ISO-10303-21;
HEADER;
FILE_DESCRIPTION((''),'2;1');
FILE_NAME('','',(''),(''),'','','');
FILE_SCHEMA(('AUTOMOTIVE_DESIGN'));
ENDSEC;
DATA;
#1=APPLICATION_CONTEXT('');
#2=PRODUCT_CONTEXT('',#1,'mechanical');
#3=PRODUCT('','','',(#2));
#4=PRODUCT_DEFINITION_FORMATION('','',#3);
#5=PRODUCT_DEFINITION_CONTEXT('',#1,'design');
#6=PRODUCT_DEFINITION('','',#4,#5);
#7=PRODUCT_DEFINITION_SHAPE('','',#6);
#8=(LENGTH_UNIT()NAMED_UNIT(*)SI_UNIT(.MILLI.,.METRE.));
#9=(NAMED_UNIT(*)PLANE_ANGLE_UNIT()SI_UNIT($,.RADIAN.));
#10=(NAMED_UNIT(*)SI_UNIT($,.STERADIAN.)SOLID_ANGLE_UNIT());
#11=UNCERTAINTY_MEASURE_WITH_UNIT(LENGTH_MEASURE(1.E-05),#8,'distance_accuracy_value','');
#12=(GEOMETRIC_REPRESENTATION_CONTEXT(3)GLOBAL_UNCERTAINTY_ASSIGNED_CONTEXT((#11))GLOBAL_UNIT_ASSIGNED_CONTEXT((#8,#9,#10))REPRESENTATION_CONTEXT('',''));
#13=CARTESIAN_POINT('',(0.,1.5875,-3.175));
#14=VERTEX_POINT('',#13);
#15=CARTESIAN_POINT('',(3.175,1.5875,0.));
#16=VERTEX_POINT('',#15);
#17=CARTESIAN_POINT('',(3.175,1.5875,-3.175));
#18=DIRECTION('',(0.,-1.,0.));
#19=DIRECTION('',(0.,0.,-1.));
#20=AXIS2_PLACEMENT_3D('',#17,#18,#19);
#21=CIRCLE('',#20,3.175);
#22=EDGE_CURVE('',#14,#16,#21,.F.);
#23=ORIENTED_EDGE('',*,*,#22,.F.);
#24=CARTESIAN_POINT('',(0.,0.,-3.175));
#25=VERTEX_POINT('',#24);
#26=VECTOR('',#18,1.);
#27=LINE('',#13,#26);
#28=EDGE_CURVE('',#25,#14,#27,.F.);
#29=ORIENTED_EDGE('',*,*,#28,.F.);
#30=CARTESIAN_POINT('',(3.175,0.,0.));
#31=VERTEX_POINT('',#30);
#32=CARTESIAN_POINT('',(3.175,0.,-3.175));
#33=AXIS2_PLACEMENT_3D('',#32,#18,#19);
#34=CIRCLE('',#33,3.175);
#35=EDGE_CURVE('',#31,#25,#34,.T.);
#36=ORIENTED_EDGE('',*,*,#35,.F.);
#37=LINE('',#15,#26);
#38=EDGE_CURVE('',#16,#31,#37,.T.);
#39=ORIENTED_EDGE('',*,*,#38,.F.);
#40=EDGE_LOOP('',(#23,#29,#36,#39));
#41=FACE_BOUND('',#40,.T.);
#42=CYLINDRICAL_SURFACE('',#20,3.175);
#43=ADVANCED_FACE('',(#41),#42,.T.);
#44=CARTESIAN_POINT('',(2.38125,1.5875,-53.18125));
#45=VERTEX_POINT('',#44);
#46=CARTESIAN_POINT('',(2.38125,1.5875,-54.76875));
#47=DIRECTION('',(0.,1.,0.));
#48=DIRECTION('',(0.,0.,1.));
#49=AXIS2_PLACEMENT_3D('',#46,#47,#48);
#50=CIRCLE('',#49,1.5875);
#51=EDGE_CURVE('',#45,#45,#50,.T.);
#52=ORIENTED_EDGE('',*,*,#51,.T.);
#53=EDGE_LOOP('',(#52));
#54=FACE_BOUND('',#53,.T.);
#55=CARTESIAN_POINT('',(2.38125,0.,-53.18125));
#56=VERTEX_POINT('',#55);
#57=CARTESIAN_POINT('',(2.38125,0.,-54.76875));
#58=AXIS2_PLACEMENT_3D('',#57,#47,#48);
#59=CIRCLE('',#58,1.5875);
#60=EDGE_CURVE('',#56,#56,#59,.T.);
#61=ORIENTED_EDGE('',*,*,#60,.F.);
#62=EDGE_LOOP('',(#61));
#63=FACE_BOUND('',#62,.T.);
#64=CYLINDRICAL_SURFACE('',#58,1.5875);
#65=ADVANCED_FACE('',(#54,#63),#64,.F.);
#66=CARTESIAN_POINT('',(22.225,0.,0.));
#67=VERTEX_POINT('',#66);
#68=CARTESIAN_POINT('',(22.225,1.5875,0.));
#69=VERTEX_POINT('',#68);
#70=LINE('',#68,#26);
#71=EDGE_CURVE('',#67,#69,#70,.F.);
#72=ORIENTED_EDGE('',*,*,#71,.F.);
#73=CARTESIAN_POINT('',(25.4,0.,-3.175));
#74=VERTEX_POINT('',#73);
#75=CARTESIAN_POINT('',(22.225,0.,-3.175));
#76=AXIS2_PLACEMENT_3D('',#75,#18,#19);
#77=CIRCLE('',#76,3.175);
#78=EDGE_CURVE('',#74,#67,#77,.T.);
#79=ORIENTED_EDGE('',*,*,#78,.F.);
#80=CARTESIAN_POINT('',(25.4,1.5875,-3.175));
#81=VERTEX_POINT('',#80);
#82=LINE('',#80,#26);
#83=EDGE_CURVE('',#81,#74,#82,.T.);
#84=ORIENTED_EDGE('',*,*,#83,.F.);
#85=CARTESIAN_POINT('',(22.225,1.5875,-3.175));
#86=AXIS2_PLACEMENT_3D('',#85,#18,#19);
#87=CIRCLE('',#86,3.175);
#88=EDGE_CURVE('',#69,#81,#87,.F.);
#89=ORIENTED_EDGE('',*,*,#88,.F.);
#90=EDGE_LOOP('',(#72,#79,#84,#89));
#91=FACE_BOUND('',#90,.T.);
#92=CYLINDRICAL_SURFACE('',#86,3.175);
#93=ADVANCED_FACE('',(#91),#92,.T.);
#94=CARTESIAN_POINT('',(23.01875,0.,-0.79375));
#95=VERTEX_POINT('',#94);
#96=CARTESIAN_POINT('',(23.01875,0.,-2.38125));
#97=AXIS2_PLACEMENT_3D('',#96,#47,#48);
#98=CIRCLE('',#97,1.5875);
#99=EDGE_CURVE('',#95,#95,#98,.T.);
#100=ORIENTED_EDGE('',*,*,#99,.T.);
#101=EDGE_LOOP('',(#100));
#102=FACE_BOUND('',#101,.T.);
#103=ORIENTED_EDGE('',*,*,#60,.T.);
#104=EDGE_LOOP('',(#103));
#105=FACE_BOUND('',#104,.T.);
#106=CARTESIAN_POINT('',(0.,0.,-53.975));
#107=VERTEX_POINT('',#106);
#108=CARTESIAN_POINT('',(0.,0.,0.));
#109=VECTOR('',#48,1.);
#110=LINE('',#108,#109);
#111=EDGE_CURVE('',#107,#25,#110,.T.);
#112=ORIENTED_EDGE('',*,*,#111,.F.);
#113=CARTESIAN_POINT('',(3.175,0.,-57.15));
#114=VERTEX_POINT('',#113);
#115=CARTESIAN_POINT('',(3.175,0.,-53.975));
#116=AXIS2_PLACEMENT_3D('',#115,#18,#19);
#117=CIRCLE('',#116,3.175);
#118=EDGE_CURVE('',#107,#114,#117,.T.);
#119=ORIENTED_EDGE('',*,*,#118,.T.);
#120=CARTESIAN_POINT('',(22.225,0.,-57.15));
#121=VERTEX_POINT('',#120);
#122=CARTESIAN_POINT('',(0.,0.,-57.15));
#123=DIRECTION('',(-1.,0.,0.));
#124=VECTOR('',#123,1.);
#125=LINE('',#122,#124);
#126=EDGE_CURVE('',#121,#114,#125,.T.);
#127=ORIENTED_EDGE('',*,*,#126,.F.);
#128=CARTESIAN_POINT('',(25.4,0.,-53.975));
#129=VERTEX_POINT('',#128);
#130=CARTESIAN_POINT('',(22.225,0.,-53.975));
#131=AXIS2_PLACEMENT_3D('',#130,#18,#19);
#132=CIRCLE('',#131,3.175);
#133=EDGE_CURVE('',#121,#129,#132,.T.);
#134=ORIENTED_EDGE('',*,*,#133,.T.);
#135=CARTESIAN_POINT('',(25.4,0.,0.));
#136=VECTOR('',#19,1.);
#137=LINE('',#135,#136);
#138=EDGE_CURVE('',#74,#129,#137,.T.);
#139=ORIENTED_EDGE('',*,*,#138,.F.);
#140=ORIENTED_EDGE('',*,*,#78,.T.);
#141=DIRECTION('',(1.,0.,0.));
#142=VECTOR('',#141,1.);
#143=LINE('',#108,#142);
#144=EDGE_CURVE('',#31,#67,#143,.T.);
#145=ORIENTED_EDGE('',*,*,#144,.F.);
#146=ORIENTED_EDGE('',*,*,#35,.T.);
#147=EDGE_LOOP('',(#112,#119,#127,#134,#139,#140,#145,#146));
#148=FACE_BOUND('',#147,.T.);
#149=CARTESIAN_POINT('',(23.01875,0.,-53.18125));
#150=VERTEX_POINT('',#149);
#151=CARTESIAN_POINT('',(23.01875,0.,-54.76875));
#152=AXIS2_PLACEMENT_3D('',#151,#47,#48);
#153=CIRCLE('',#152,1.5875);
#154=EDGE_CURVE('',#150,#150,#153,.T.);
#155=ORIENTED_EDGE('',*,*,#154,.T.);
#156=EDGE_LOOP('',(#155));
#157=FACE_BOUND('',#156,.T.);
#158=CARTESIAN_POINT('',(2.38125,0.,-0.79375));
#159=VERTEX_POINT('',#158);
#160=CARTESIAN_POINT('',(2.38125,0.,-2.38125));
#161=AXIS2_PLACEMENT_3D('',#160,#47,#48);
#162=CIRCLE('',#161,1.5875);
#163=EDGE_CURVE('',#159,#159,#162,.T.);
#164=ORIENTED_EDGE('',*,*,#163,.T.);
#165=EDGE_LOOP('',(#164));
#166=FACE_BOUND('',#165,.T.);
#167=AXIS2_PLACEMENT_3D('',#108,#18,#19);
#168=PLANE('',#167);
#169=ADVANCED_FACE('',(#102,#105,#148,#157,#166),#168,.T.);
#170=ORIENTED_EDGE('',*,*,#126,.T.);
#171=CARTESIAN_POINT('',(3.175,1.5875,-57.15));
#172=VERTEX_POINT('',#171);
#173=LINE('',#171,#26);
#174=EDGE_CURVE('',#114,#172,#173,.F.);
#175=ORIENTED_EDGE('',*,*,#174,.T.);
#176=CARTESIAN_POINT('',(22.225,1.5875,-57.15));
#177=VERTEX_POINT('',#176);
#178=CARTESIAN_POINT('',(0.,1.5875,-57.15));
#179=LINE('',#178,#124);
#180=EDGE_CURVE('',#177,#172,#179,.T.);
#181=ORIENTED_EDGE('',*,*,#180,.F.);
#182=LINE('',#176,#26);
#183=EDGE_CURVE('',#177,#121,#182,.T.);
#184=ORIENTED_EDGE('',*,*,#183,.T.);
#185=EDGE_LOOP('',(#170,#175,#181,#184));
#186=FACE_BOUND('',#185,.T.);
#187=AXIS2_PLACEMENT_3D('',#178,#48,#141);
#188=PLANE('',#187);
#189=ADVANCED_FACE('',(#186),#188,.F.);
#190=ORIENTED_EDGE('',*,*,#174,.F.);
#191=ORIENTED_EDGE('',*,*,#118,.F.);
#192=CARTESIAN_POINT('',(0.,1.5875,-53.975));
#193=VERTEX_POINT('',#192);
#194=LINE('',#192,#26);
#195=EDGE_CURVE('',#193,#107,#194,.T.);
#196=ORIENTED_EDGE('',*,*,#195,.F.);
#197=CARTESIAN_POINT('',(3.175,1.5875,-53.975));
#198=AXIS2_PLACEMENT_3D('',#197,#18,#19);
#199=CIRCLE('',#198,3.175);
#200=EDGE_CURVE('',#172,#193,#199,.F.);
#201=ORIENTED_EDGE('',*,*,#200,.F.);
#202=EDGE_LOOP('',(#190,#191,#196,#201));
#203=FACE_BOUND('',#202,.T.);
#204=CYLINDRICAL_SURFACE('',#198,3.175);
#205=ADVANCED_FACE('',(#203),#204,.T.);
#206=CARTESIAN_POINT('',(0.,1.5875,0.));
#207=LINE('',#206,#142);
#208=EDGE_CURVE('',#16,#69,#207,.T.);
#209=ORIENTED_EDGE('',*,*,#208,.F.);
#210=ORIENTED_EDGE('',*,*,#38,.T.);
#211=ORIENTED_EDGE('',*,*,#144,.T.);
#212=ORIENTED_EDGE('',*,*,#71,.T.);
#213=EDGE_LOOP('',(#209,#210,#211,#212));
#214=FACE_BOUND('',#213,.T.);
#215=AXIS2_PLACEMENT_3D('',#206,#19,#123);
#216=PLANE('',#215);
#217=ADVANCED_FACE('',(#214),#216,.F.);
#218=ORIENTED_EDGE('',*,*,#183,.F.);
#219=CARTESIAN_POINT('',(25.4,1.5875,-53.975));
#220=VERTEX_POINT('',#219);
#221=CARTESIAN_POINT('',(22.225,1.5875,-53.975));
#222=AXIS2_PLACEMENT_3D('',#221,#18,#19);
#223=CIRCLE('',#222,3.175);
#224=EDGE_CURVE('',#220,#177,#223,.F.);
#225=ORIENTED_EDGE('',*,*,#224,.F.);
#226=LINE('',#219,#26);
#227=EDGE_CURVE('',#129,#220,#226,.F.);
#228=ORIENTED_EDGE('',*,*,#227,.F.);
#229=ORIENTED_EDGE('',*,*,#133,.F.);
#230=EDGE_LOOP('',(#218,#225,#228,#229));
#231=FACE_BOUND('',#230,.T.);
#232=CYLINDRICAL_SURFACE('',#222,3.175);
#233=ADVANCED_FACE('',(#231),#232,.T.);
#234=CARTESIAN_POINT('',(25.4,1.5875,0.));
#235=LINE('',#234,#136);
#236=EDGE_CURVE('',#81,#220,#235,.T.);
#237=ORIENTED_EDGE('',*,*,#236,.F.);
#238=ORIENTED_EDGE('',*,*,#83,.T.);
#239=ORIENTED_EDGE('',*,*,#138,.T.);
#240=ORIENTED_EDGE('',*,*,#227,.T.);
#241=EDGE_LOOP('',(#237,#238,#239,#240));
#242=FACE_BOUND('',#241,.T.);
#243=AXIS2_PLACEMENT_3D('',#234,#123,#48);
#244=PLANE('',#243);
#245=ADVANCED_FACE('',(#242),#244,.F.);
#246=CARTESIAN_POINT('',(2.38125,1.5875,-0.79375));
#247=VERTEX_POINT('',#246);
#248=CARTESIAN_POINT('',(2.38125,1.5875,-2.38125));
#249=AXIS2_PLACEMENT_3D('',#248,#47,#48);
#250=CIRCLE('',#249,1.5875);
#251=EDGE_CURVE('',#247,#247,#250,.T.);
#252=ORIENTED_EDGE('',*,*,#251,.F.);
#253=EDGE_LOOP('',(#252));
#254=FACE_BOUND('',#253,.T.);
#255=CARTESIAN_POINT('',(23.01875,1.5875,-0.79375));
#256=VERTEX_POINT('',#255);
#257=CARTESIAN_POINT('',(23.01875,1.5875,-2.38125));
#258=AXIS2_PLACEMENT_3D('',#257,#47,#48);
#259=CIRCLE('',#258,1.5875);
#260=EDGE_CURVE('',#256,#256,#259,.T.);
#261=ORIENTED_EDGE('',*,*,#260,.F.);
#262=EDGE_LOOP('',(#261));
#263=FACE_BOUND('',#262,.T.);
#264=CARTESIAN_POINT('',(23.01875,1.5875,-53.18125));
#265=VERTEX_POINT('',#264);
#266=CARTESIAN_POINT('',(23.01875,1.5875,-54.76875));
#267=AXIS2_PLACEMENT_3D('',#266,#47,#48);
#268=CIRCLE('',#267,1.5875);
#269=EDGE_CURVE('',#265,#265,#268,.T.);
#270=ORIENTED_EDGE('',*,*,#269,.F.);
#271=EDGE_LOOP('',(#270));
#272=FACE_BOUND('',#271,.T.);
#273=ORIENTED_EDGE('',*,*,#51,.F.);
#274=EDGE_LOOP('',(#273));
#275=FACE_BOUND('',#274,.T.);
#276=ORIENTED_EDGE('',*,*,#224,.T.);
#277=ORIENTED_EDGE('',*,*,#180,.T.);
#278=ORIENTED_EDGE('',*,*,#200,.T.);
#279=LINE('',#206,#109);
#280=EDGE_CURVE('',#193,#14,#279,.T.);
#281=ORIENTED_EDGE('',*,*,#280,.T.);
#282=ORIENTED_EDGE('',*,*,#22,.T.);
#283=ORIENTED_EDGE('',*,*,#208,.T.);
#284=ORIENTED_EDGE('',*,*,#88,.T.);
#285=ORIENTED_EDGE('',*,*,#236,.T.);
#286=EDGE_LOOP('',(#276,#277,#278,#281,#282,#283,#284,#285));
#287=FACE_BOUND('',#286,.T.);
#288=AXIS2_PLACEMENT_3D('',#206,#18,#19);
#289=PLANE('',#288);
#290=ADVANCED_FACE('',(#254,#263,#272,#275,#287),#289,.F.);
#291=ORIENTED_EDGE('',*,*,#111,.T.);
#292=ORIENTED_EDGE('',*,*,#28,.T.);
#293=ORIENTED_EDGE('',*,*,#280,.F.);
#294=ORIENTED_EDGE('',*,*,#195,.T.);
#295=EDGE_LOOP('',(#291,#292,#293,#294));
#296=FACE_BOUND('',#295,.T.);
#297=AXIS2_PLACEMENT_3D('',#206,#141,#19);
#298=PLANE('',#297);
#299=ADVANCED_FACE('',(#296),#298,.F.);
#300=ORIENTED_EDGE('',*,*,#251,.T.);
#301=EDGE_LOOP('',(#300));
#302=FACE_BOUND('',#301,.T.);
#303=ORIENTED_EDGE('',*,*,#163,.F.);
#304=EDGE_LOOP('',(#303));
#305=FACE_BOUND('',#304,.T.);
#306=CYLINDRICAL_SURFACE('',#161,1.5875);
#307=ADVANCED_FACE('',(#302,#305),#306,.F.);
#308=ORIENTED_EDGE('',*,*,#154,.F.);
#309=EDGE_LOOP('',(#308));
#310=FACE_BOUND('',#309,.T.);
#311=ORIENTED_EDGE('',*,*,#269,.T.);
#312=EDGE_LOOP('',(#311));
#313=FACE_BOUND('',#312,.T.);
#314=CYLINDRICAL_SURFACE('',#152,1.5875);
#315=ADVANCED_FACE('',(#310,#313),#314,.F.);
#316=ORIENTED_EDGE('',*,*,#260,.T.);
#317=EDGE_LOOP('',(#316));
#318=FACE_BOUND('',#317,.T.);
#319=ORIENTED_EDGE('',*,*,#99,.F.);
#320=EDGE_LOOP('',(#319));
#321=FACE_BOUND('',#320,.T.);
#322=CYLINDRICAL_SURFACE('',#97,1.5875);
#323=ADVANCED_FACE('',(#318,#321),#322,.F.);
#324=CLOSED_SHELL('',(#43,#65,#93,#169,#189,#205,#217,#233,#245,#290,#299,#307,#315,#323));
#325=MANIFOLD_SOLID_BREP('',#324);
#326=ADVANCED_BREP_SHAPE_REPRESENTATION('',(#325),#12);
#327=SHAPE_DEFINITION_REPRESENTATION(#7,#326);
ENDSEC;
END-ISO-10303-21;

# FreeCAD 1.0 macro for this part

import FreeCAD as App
import Part
import Sketcher
Q = App.Units.Quantity


def edges_at(feature, points):
    """Names of the edges that pass closest to the given points."""
    edges = feature.Shape.Edges
    near = lambda p: min(range(len(edges)), key=lambda i: edges[i].distToShape(Part.Vertex(*p))[0])
    return sorted({f"Edge{near(p) + 1}" for p in points})


def add_polygon(sketch, points):
    """Adds a closed chain of lines whose ends are joined by coincident constraints."""
    first, n = sketch.GeometryCount, len(points)
    for a, b in zip(points, points[1:] + points[:1]):
        sketch.addGeometry(Part.LineSegment(App.Vector(*a, 0), App.Vector(*b, 0)), False)
    for i in range(n):
        sketch.addConstraint(Sketcher.Constraint("Coincident", first + i, 2, first + (i + 1) % n, 1))

doc = App.newDocument("Part")
body = doc.addObject("PartDesign::Body", "Body")

sketch1 = body.newObject("Sketcher::SketchObject", "Sketch")
sketch1.AttachmentSupport = (doc.getObject("XZ_Plane"), [""])
sketch1.MapMode = "FlatFace"
add_polygon(sketch1, [(0, -57), (0, 0), (25, 0), (25, -57)])
sketch1.addConstraint(Sketcher.Constraint("Vertical", 0))
sketch1.addConstraint(Sketcher.Constraint("Horizontal", 1))
sketch1.addConstraint(Sketcher.Constraint("Vertical", 2))
sketch1.addConstraint(Sketcher.Constraint("Horizontal", 3))
sketch1.addConstraint(Sketcher.Constraint("Coincident", 0, 2, -1, 1))
sketch1.addConstraint(Sketcher.Constraint("DistanceX", 1, 1, 1, 2, Q("1 in")))
sketch1.addConstraint(Sketcher.Constraint("DistanceY", 0, 1, 0, 2, Q("2.25 in")))
pad1 = body.newObject("PartDesign::Pad", "Pad")
pad1.Profile = sketch1
pad1.Length = Q("0.0625 in")
pad1.Reversed = True

sketch2 = body.newObject("Sketcher::SketchObject", "Sketch001")
sketch2.AttachmentSupport = (doc.getObject("XZ_Plane"), [""])
sketch2.MapMode = "FlatFace"
sketch2.AttachmentOffset = App.Placement(App.Vector(0, 0, -0.0625 * 25.4), App.Rotation())
sketch2.addGeometry(Part.Circle(App.Vector(2.4, -54.8, 0), App.Vector(0, 0, 1), 1.6), False)
sketch2.addGeometry(Part.Circle(App.Vector(23, -54.8, 0), App.Vector(0, 0, 1), 1.6), False)
sketch2.addGeometry(Part.Circle(App.Vector(23, -2.4, 0), App.Vector(0, 0, 1), 1.6), False)
sketch2.addGeometry(Part.Circle(App.Vector(2.4, -2.4, 0), App.Vector(0, 0, 1), 1.6), False)
sketch2.addConstraint(Sketcher.Constraint("Equal", 0, 1))
sketch2.addConstraint(Sketcher.Constraint("Equal", 1, 2))
sketch2.addConstraint(Sketcher.Constraint("Equal", 2, 3))
sketch2.addConstraint(Sketcher.Constraint("Horizontal", 0, 3, 1, 3))
sketch2.addConstraint(Sketcher.Constraint("Horizontal", 2, 3, 3, 3))
sketch2.addConstraint(Sketcher.Constraint("Vertical", 1, 3, 2, 3))
sketch2.addConstraint(Sketcher.Constraint("Vertical", 0, 3, 3, 3))
sketch2.addConstraint(Sketcher.Constraint("Diameter", 0, Q("0.125 in")))
sketch2.addConstraint(Sketcher.Constraint("DistanceX", -1, 1, 0, 3, Q("0.09375 in")))
sketch2.addConstraint(Sketcher.Constraint("DistanceY", 0, 3, -1, 1, Q("2.15625 in")))
sketch2.addConstraint(Sketcher.Constraint("DistanceX", -1, 1, 1, 3, Q("0.90625 in")))
sketch2.addConstraint(Sketcher.Constraint("DistanceY", 2, 3, -1, 1, Q("0.09375 in")))
pocket1 = body.newObject("PartDesign::Pocket", "Pocket")
pocket1.Profile = sketch2
pocket1.Type = "ThroughAll"
pocket1.Reversed = True
doc.recompute()

fillet = body.newObject("PartDesign::Fillet", "Fillet")
fillet.Base = (pocket1, edges_at(pocket1, [
    (0, 0.794, -57.15),
    (25.4, 0.794, -57.15),
    (25.4, 0.794, 0),
    (0, 0.794, 0),
]))
fillet.Radius = Q("0.125 in")

doc.recompute()
